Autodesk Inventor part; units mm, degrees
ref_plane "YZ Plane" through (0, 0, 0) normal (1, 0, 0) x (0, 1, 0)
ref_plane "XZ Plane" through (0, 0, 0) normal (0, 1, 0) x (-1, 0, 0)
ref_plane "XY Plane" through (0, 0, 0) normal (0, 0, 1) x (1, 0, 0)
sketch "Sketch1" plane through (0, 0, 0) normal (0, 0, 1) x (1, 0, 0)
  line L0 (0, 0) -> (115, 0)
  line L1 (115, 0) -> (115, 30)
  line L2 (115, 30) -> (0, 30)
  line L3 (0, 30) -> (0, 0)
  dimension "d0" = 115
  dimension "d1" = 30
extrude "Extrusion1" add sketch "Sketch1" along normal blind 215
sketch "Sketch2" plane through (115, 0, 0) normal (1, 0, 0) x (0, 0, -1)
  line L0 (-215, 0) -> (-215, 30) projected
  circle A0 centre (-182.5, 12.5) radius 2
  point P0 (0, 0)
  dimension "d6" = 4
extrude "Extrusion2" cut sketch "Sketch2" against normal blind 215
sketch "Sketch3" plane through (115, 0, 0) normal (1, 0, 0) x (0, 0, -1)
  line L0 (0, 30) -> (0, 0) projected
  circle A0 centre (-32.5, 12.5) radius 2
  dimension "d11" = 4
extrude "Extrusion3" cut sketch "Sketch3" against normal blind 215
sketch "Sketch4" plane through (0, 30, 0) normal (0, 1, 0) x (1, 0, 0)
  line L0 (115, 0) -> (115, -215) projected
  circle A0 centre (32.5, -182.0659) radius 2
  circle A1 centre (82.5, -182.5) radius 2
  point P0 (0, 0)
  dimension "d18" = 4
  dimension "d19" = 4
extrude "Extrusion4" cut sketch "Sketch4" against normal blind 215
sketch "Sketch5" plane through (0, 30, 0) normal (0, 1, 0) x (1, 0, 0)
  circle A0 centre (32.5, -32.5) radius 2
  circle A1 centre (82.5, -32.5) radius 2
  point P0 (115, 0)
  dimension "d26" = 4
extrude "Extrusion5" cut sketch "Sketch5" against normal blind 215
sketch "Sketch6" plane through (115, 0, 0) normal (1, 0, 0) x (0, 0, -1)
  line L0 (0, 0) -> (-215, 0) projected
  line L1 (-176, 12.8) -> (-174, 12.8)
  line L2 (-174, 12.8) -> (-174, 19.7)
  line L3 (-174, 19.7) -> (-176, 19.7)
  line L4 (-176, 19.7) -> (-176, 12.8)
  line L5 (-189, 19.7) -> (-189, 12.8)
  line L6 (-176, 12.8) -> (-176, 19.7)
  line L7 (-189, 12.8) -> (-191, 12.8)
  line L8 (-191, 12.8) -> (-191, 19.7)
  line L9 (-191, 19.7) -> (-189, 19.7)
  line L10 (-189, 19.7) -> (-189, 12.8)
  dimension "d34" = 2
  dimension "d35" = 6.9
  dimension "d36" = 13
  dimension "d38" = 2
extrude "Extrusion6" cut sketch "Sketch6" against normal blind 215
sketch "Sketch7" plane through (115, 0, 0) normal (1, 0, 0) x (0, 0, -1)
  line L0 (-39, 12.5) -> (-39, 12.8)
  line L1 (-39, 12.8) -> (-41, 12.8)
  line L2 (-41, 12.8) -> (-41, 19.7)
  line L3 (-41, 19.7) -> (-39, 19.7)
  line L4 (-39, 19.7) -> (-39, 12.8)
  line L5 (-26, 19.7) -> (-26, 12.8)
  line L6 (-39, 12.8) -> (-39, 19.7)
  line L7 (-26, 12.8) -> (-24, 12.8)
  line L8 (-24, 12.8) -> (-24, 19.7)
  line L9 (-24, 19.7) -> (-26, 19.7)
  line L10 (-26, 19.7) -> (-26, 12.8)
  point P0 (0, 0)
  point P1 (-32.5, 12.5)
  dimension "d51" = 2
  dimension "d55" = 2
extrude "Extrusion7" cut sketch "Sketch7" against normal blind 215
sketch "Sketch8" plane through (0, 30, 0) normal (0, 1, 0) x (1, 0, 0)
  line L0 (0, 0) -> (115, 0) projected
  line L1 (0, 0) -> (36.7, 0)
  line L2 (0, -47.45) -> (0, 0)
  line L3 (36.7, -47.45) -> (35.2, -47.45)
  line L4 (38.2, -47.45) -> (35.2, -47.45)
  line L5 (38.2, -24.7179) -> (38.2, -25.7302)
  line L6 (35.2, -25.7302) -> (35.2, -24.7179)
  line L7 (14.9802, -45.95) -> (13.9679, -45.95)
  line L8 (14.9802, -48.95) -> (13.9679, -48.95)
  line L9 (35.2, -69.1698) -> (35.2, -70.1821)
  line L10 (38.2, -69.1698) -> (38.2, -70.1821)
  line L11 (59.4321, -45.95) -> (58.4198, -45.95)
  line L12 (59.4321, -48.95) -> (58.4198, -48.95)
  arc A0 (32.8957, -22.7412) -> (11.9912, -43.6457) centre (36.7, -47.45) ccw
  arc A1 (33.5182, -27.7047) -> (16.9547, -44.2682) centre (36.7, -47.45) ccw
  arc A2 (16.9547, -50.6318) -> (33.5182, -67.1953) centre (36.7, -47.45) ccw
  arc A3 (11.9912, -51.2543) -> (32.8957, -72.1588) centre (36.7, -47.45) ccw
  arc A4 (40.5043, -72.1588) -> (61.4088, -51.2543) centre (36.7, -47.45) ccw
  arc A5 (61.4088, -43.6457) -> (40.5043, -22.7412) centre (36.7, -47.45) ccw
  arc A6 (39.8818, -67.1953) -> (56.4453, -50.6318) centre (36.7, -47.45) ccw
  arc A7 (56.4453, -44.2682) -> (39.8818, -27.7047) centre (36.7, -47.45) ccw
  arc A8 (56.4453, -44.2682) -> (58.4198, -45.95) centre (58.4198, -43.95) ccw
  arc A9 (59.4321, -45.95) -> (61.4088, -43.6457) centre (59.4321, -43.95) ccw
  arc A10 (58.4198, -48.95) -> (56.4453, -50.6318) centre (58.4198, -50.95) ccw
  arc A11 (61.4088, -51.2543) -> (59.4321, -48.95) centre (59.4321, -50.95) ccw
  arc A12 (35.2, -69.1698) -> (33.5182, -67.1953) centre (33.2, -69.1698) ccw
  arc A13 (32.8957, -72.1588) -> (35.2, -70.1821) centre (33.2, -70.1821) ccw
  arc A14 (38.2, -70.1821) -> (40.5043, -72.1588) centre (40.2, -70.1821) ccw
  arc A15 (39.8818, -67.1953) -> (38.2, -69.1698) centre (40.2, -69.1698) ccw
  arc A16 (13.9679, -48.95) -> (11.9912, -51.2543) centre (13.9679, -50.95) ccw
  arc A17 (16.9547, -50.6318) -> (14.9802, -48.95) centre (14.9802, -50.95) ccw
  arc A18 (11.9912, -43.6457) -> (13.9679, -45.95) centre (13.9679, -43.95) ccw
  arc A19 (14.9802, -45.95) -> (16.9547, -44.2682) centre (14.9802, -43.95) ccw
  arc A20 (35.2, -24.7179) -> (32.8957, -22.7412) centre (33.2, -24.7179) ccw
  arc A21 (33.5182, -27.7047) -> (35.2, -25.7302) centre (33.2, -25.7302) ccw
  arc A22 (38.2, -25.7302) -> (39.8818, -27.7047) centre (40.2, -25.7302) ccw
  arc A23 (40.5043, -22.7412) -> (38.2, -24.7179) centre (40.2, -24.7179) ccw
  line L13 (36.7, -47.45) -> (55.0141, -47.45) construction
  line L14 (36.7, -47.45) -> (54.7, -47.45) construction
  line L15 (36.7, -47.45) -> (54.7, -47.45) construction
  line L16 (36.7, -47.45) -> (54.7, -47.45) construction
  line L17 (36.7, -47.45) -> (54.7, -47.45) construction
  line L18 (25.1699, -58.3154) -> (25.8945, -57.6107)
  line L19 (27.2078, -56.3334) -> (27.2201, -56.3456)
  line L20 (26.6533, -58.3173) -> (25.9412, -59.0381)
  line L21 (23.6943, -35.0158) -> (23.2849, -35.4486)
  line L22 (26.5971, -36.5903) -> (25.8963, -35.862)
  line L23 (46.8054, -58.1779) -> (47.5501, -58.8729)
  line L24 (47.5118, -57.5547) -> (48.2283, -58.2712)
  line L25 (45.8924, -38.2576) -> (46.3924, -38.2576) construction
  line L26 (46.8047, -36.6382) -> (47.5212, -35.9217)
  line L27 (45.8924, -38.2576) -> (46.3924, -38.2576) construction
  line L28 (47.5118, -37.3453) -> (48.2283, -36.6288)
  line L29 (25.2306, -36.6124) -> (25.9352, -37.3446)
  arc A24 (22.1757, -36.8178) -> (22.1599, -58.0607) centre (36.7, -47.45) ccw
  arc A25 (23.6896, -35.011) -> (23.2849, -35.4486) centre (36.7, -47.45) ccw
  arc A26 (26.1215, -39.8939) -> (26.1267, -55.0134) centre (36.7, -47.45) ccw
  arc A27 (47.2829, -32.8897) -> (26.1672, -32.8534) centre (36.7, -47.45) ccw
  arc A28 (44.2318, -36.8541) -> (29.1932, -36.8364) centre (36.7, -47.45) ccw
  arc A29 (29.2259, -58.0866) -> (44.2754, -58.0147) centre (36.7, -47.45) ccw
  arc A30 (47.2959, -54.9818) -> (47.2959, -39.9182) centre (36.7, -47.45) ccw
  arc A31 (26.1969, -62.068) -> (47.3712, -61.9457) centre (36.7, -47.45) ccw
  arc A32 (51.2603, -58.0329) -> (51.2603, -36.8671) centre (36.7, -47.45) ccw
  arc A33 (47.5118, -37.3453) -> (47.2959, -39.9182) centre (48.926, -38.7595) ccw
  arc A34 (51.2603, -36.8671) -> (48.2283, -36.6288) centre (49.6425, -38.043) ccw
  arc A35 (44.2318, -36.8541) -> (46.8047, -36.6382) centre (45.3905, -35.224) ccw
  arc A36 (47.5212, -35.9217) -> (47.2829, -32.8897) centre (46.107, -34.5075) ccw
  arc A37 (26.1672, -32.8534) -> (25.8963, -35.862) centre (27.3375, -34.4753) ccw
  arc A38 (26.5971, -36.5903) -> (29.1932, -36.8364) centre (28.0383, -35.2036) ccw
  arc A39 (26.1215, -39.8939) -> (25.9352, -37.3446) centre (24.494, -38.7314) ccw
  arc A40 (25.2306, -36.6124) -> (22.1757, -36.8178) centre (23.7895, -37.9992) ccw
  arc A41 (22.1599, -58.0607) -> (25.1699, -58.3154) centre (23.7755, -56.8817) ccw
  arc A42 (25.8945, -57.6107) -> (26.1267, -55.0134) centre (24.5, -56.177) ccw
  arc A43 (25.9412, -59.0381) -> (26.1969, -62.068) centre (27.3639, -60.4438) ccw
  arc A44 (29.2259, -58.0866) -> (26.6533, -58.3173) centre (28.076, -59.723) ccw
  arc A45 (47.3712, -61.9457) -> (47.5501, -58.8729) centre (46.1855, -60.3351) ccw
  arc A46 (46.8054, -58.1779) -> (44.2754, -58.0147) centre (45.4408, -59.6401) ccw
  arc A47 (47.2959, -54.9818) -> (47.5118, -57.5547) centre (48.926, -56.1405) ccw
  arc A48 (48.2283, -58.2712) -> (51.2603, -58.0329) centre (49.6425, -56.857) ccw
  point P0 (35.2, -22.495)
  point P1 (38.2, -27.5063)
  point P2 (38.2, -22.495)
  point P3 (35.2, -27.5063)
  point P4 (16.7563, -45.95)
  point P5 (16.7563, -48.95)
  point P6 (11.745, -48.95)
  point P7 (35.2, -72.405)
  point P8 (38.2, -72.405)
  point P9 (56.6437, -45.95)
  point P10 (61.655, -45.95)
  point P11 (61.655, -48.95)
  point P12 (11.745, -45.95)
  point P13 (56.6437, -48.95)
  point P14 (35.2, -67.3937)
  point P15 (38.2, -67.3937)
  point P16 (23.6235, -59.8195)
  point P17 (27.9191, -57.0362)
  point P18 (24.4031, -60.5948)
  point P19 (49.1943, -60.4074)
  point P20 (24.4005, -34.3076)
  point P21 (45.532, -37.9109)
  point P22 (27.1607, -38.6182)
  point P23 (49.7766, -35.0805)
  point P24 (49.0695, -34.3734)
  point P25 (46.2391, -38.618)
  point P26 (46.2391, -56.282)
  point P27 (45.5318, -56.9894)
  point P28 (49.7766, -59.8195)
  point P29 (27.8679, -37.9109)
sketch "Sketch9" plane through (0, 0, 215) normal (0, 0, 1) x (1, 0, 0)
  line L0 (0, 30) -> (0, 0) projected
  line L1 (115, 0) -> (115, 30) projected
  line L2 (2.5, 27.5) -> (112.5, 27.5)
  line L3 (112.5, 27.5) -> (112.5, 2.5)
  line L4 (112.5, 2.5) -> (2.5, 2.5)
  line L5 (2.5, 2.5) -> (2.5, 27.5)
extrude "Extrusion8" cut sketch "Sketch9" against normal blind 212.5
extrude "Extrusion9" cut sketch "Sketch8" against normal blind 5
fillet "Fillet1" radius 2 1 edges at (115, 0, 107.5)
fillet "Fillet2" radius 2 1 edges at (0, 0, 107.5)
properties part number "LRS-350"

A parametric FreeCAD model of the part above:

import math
import FreeCAD as App
import Part
import Sketcher
from FreeCAD import Vector
Q = App.Units.Quantity


def edges_at(feature, points):
    """Names of the edges that pass closest to the given points."""
    edges = feature.Shape.Edges
    near = lambda p: min(range(len(edges)), key=lambda i: edges[i].distToShape(Part.Vertex(*p))[0])
    return sorted({f"Edge{near(p) + 1}" for p in points})


def add_polygon(sketch, points):
    """Adds a closed chain of lines whose ends are joined by coincident constraints."""
    first, n = sketch.GeometryCount, len(points)
    for a, b in zip(points, points[1:] + points[:1]):
        sketch.addGeometry(Part.LineSegment(App.Vector(*a, 0), App.Vector(*b, 0)), False)
    for i in range(n):
        sketch.addConstraint(Sketcher.Constraint("Coincident", first + i, 2, first + (i + 1) % n, 1))

doc = App.newDocument("Part")
params = doc.addObject("Spreadsheet::Sheet", "Params")
for row, (alias, value) in enumerate([
    ("sketch1_width", "115 mm"),
    ("sketch1_height", "30 mm"),
    ("pad1_length", "215 mm"),
    ("sketch2_diameter", "4 mm"),
    ("pocket1_length", "215 mm"),
    ("sketch3_diameter", "4 mm"),
    ("pocket2_length", "215 mm"),
    ("sketch4_diameter", "4 mm"),
    ("pocket3_length", "215 mm"),
    ("sketch5_diameter", "4 mm"),
    ("pocket4_length", "215 mm"),
    ("sketch6_height", "2 mm"),
    ("sketch6_width", "6.9 mm"),
    ("pocket5_length", "215 mm"),
    ("sketch7_height", "2 mm"),
    ("sketch7_width", "6.9 mm"),
    ("pocket6_length", "215 mm"),
    ("sketch8_width", "110 mm"),
    ("sketch8_height", "25 mm"),
    ("pocket7_length", "212.5 mm"),
    ("sketch9_radius", "2 mm"),
    ("sketch9_radius2", "2 mm"),
    ("sketch9_radius3", "20 mm"),
    ("sketch9_radius4", "2 mm"),
    ("sketch9_radius5", "2 mm"),
    ("pocket8_length", "5 mm"),
    ("fillet_radius", "2 mm"),
    ("fillet2_radius", "2 mm"),
], start=1):
    params.set(f"A{row}", alias)
    params.set(f"B{row}", "=" + value)
    params.setAlias(f"B{row}", alias)

body = doc.addObject("PartDesign::Body", "Body")

sketch1 = body.newObject("Sketcher::SketchObject", "Sketch")
sketch1.AttachmentSupport = (doc.getObject("XY_Plane"), [""])
sketch1.MapMode = "FlatFace"
add_polygon(sketch1, [(0, 30), (0, 0), (115, 0), (115, 30)])
sketch1.addConstraint([
    Sketcher.Constraint("Vertical", 0),
    Sketcher.Constraint("Horizontal", 1),
    Sketcher.Constraint("Vertical", 2),
    Sketcher.Constraint("Horizontal", 3),
    Sketcher.Constraint("Coincident", 0, 2, -1, 1),
    Sketcher.Constraint("DistanceX", 1, 1, 1, 2, Q("115 mm")),
    Sketcher.Constraint("DistanceY", 0, 2, 0, 1, Q("30 mm")),
])
sketch1.setExpression("Constraints[9]", "Params.sketch1_width")
sketch1.setExpression("Constraints[10]", "Params.sketch1_height")
pad1 = body.newObject("PartDesign::Pad", "Pad")
pad1.Profile = sketch1
pad1.setExpression("Length", "Params.pad1_length")

sketch2 = body.newObject("Sketcher::SketchObject", "Sketch001")
sketch2.AttachmentSupport = (doc.getObject("YZ_Plane"), [""])
sketch2.MapMode = "FlatFace"
sketch2.AttachmentOffset = App.Placement(Vector(0, 0, 115), App.Rotation())
sketch2.addGeometry(Part.Circle(Vector(12.5, 182.5, 0), Vector(0, 0, 1), 2), False)
sketch2.addConstraint([
    Sketcher.Constraint("Diameter", 0, Q("4 mm")),
    Sketcher.Constraint("DistanceX", -1, 1, 0, 3, Q("12.5 mm")),
    Sketcher.Constraint("DistanceY", -1, 1, 0, 3, Q("182.5 mm")),
])
sketch2.setExpression("Constraints[0]", "Params.sketch2_diameter")
pocket1 = body.newObject("PartDesign::Pocket", "Pocket")
pocket1.Profile = sketch2
pocket1.setExpression("Length", "Params.pocket1_length")

sketch3 = body.newObject("Sketcher::SketchObject", "Sketch002")
sketch3.AttachmentSupport = (doc.getObject("YZ_Plane"), [""])
sketch3.MapMode = "FlatFace"
sketch3.AttachmentOffset = App.Placement(Vector(0, 0, 115), App.Rotation())
sketch3.addGeometry(Part.Circle(Vector(12.5, 32.5, 0), Vector(0, 0, 1), 2), False)
sketch3.addConstraint([
    Sketcher.Constraint("Diameter", 0, Q("4 mm")),
    Sketcher.Constraint("DistanceX", -1, 1, 0, 3, Q("12.5 mm")),
    Sketcher.Constraint("DistanceY", -1, 1, 0, 3, Q("32.5 mm")),
])
sketch3.setExpression("Constraints[0]", "Params.sketch3_diameter")
pocket2 = body.newObject("PartDesign::Pocket", "Pocket001")
pocket2.Profile = sketch3
pocket2.setExpression("Length", "Params.pocket2_length")

sketch4 = body.newObject("Sketcher::SketchObject", "Sketch003")
sketch4.AttachmentSupport = (doc.getObject("XZ_Plane"), [""])
sketch4.MapMode = "FlatFace"
sketch4.AttachmentOffset = App.Placement(Vector(0, 0, -30), App.Rotation())
sketch4.addGeometry([
    Part.Circle(Vector(32.5, 182.0659, 0), Vector(0, 0, 1), 2),
    Part.Circle(Vector(82.5, 182.5, 0), Vector(0, 0, 1), 2),
], False)
sketch4.addConstraint([
    Sketcher.Constraint("Equal", 0, 1),
    Sketcher.Constraint("Diameter", 0, Q("4 mm")),
    Sketcher.Constraint("DistanceX", 0, 3, 1, 3, Q("50 mm")),
    Sketcher.Constraint("DistanceX", -1, 1, 0, 3, Q("32.5 mm")),
    Sketcher.Constraint("DistanceY", -1, 1, 1, 3, Q("182.5 mm")),
    Sketcher.Constraint("DistanceY", -1, 1, 0, 3, Q("182.066 mm")),
])
sketch4.setExpression("Constraints[1]", "Params.sketch4_diameter")
pocket3 = body.newObject("PartDesign::Pocket", "Pocket002")
pocket3.Profile = sketch4
pocket3.setExpression("Length", "Params.pocket3_length")
pocket3.Reversed = True

sketch5 = body.newObject("Sketcher::SketchObject", "Sketch004")
sketch5.AttachmentSupport = (doc.getObject("XZ_Plane"), [""])
sketch5.MapMode = "FlatFace"
sketch5.AttachmentOffset = App.Placement(Vector(0, 0, -30), App.Rotation())
sketch5.addGeometry([
    Part.Circle(Vector(32.5, 32.5, 0), Vector(0, 0, 1), 2),
    Part.Circle(Vector(82.5, 32.5, 0), Vector(0, 0, 1), 2),
], False)
sketch5.addConstraint([
    Sketcher.Constraint("Equal", 0, 1),
    Sketcher.Constraint("Horizontal", 0, 3, 1, 3),
    Sketcher.Constraint("Diameter", 0, Q("4 mm")),
    Sketcher.Constraint("DistanceX", 0, 3, 1, 3, Q("50 mm")),
    Sketcher.Constraint("DistanceX", -1, 1, 0, 3, Q("32.5 mm")),
    Sketcher.Constraint("DistanceY", -1, 1, 0, 3, Q("32.5 mm")),
])
sketch5.setExpression("Constraints[2]", "Params.sketch5_diameter")
pocket4 = body.newObject("PartDesign::Pocket", "Pocket003")
pocket4.Profile = sketch5
pocket4.setExpression("Length", "Params.pocket4_length")
pocket4.Reversed = True

sketch6 = body.newObject("Sketcher::SketchObject", "Sketch005")
sketch6.AttachmentSupport = (doc.getObject("YZ_Plane"), [""])
sketch6.MapMode = "FlatFace"
sketch6.AttachmentOffset = App.Placement(Vector(0, 0, 115), App.Rotation())
add_polygon(sketch6, [(19.7, 176), (12.8, 176), (12.8, 174), (19.7, 174)])
add_polygon(sketch6, [(12.8, 189), (19.7, 189), (19.7, 191), (12.8, 191)])
sketch6.addConstraint([
    Sketcher.Constraint("Horizontal", 0),
    Sketcher.Constraint("Vertical", 1),
    Sketcher.Constraint("Horizontal", 2),
    Sketcher.Constraint("Vertical", 3),
    Sketcher.Constraint("Horizontal", 4),
    Sketcher.Constraint("Vertical", 5),
    Sketcher.Constraint("Horizontal", 6),
    Sketcher.Constraint("Vertical", 7),
    Sketcher.Constraint("Vertical", 3, 2, 4, 2),
    Sketcher.Constraint("Vertical", 1, 2, 6, 2),
    Sketcher.Constraint("Equal", 3, 5),
    Sketcher.Constraint("DistanceY", 1, 2, 1, 1, Q("2 mm")),
    Sketcher.Constraint("DistanceX", 0, 2, 0, 1, Q("6.9 mm")),
    Sketcher.Constraint("DistanceY", 3, 2, 4, 2, Q("13 mm")),
    Sketcher.Constraint("DistanceY", -1, 1, 0, 2, Q("176 mm")),
    Sketcher.Constraint("DistanceX", -1, 1, 0, 2, Q("12.8 mm")),
])
sketch6.setExpression("Constraints[19]", "Params.sketch6_height")
sketch6.setExpression("Constraints[20]", "Params.sketch6_width")
pocket5 = body.newObject("PartDesign::Pocket", "Pocket004")
pocket5.Profile = sketch6
pocket5.setExpression("Length", "Params.pocket5_length")

sketch7 = body.newObject("Sketcher::SketchObject", "Sketch006")
sketch7.AttachmentSupport = (doc.getObject("YZ_Plane"), [""])
sketch7.MapMode = "FlatFace"
sketch7.AttachmentOffset = App.Placement(Vector(0, 0, 115), App.Rotation())
add_polygon(sketch7, [(12.8, 41), (12.8, 39), (19.7, 39), (19.7, 41)])
add_polygon(sketch7, [(19.7, 24), (19.7, 26), (12.8, 26), (12.8, 24)])
sketch7.addConstraint([
    Sketcher.Constraint("Vertical", 0),
    Sketcher.Constraint("Horizontal", 1),
    Sketcher.Constraint("Vertical", 2),
    Sketcher.Constraint("Horizontal", 3),
    Sketcher.Constraint("Vertical", 4),
    Sketcher.Constraint("Horizontal", 5),
    Sketcher.Constraint("Vertical", 6),
    Sketcher.Constraint("Horizontal", 7),
    Sketcher.Constraint("Vertical", 2, 2, 4, 2),
    Sketcher.Constraint("Vertical", 3, 2, 5, 2),
    Sketcher.Constraint("Equal", 2, 4),
    Sketcher.Constraint("DistanceY", 0, 2, 0, 1, Q("2 mm")),
    Sketcher.Constraint("DistanceX", 1, 1, 1, 2, Q("6.9 mm")),
    Sketcher.Constraint("DistanceY", -1, 1, 0, 2, Q("39 mm")),
    Sketcher.Constraint("DistanceY", -1, 1, 4, 2, Q("26 mm")),
    Sketcher.Constraint("DistanceX", -1, 1, 0, 2, Q("12.8 mm")),
])
sketch7.setExpression("Constraints[19]", "Params.sketch7_height")
sketch7.setExpression("Constraints[20]", "Params.sketch7_width")
pocket6 = body.newObject("PartDesign::Pocket", "Pocket005")
pocket6.Profile = sketch7
pocket6.setExpression("Length", "Params.pocket6_length")

sketch8 = body.newObject("Sketcher::SketchObject", "Sketch007")
sketch8.AttachmentSupport = (doc.getObject("XY_Plane"), [""])
sketch8.MapMode = "FlatFace"
sketch8.AttachmentOffset = App.Placement(Vector(0, 0, 215), App.Rotation())
add_polygon(sketch8, [(112.5, 27.5), (2.5, 27.5), (2.5, 2.5), (112.5, 2.5)])
sketch8.addConstraint([
    Sketcher.Constraint("Horizontal", 0),
    Sketcher.Constraint("Vertical", 1),
    Sketcher.Constraint("Horizontal", 2),
    Sketcher.Constraint("Vertical", 3),
    Sketcher.Constraint("DistanceX", 0, 2, 0, 1, Q("110 mm")),
    Sketcher.Constraint("DistanceY", 1, 2, 1, 1, Q("25 mm")),
    Sketcher.Constraint("DistanceX", -1, 1, 0, 2, Q("2.5 mm")),
    Sketcher.Constraint("DistanceY", -1, 1, 0, 2, Q("27.5 mm")),
])
sketch8.setExpression("Constraints[8]", "Params.sketch8_width")
sketch8.setExpression("Constraints[9]", "Params.sketch8_height")
pocket7 = body.newObject("PartDesign::Pocket", "Pocket006")
pocket7.Profile = sketch8
pocket7.setExpression("Length", "Params.pocket7_length")

sketch9 = body.newObject("Sketcher::SketchObject", "Sketch008")
sketch9.AttachmentSupport = (doc.getObject("XZ_Plane"), [""])
sketch9.MapMode = "FlatFace"
sketch9.AttachmentOffset = App.Placement(Vector(0, 0, -30), App.Rotation())
sketch9.addGeometry([
    Part.ArcOfCircle(Part.Circle(Vector(40.2, 24.7179, 0), Vector(0, 0, 1), 1.999985), math.radians(180), math.radians(278.751607)),
    Part.LineSegment(Vector(38.2, 24.7179, 0), Vector(38.2, 25.7302, 0)),
    Part.ArcOfCircle(Part.Circle(Vector(40.2, 25.7302, 0), Vector(0, 0, 1), 2), math.radians(99.154775), math.radians(180)),
    Part.ArcOfCircle(Part.Circle(Vector(36.7, 47.45, 0), Vector(0, 0, 1), 20.000018), math.radians(-80.845928), math.radians(-9.154072)),
    Part.ArcOfCircle(Part.Circle(Vector(58.4198, 43.95, 0), Vector(0, 0, 1), 1.999975), math.radians(90), math.radians(170.845225)),
    Part.LineSegment(Vector(58.4198, 45.95, 0), Vector(59.4321, 45.95, 0)),
    Part.ArcOfCircle(Part.Circle(Vector(59.4321, 43.95, 0), Vector(0, 0, 1), 2), math.radians(-8.751607), math.radians(90)),
    Part.ArcOfCircle(Part.Circle(Vector(36.7, 47.45, 0), Vector(0, 0, 1), 24.99995), math.radians(-81.247164), math.radians(-8.752836)),
    Part.ArcOfCircle(Part.Circle(Vector(33.2, 25.7302, 0), Vector(0, 0, 1), 1.999975), math.radians(0), math.radians(80.845225)),
    Part.LineSegment(Vector(35.2, 25.7302, 0), Vector(35.2, 24.7179, 0)),
    Part.ArcOfCircle(Part.Circle(Vector(33.2, 24.7179, 0), Vector(0, 0, 1), 2), math.radians(-98.751607), math.radians(0)),
    Part.ArcOfCircle(Part.Circle(Vector(36.7, 47.45, 0), Vector(0, 0, 1), 24.99995), math.radians(-171.247164), math.radians(-98.752836)),
    Part.ArcOfCircle(Part.Circle(Vector(13.9679, 43.95, 0), Vector(0, 0, 1), 1.999985), math.radians(90), math.radians(188.751607)),
    Part.LineSegment(Vector(13.9679, 45.95, 0), Vector(14.9802, 45.95, 0)),
    Part.ArcOfCircle(Part.Circle(Vector(14.9802, 43.95, 0), Vector(0, 0, 1), 2), math.radians(9.154775), math.radians(90)),
    Part.ArcOfCircle(Part.Circle(Vector(36.7, 47.45, 0), Vector(0, 0, 1), 20.000018), math.radians(-170.845928), math.radians(-99.154072)),
    Part.ArcOfCircle(Part.Circle(Vector(14.9802, 50.95, 0), Vector(0, 0, 1), 1.999975), math.radians(-90), math.radians(-9.154775)),
    Part.LineSegment(Vector(14.9802, 48.95, 0), Vector(13.9679, 48.95, 0)),
    Part.ArcOfCircle(Part.Circle(Vector(13.9679, 50.95, 0), Vector(0, 0, 1), 2), math.radians(171.248393), math.radians(270)),
    Part.ArcOfCircle(Part.Circle(Vector(36.7, 47.45, 0), Vector(0, 0, 1), 24.99995), math.radians(98.752836), math.radians(171.247164)),
    Part.ArcOfCircle(Part.Circle(Vector(33.2, 70.1821, 0), Vector(0, 0, 1), 1.999985), math.radians(0), math.radians(98.751607)),
    Part.LineSegment(Vector(35.2, 70.1821, 0), Vector(35.2, 69.1698, 0)),
    Part.ArcOfCircle(Part.Circle(Vector(33.2, 69.1698, 0), Vector(0, 0, 1), 2), math.radians(-80.845225), math.radians(0)),
    Part.ArcOfCircle(Part.Circle(Vector(36.7, 47.45, 0), Vector(0, 0, 1), 20.000018), math.radians(99.154072), math.radians(170.845928)),
    Part.ArcOfCircle(Part.Circle(Vector(40.2, 69.1698, 0), Vector(0, 0, 1), 1.999975), math.radians(180), math.radians(260.845225)),
    Part.LineSegment(Vector(38.2, 69.1698, 0), Vector(38.2, 70.1821, 0)),
    Part.ArcOfCircle(Part.Circle(Vector(40.2, 70.1821, 0), Vector(0, 0, 1), 2), math.radians(81.248393), math.radians(180)),
    Part.ArcOfCircle(Part.Circle(Vector(36.7, 47.45, 0), Vector(0, 0, 1), 24.99995), math.radians(8.752836), math.radians(81.247164)),
    Part.ArcOfCircle(Part.Circle(Vector(59.4321, 50.95, 0), Vector(0, 0, 1), 1.999985), math.radians(-90), math.radians(8.751607)),
    Part.LineSegment(Vector(59.4321, 48.95, 0), Vector(58.4198, 48.95, 0)),
    Part.ArcOfCircle(Part.Circle(Vector(58.4198, 50.95, 0), Vector(0, 0, 1), 2), math.radians(-170.845225), math.radians(-90)),
    Part.ArcOfCircle(Part.Circle(Vector(36.7, 47.45, 0), Vector(0, 0, 1), 20.000018), math.radians(9.154072), math.radians(80.845928)),
    Part.ArcOfCircle(Part.Circle(Vector(23.7755, 56.8817, 0), Vector(0, 0, 1), 2.000051), math.radians(45.796146), math.radians(143.879533)),
    Part.LineSegment(Vector(25.1699, 58.3154, 0), Vector(25.8945, 57.6107, 0)),
    Part.ArcOfCircle(Part.Circle(Vector(24.5, 56.177, 0), Vector(0, 0, 1), 2.000031), math.radians(-35.576641), math.radians(45.794092)),
    Part.ArcOfCircle(Part.Circle(Vector(36.7, 47.45, 0), Vector(0, 0, 1), 13.000043), math.radians(144.422718), math.radians(215.53778)),
    Part.ArcOfCircle(Part.Circle(Vector(24.494, 38.7314, 0), Vector(0, 0, 1), 2.000041), math.radians(-43.897982), math.radians(35.537678)),
    Part.LineSegment(Vector(25.9352, 37.3446, 0), Vector(25.2306, 36.6124, 0)),
    Part.ArcOfCircle(Part.Circle(Vector(23.7895, 37.9992, 0), Vector(0, 0, 1), 1.999996), math.radians(-143.793598), math.radians(-43.899969)),
    Part.ArcOfCircle(Part.Circle(Vector(36.7, 47.45, 0), Vector(0, 0, 1), 18.000029), math.radians(143.879742), math.radians(216.205187)),
    Part.ArcOfCircle(Part.Circle(Vector(28.076, 59.723, 0), Vector(0, 0, 1), 2.000019), math.radians(-135.34437), math.radians(-54.904247)),
    Part.LineSegment(Vector(26.6533, 58.3173, 0), Vector(25.9412, 59.0381, 0)),
    Part.ArcOfCircle(Part.Circle(Vector(27.3639, 60.4438, 0), Vector(0, 0, 1), 2.000017), math.radians(125.697532), math.radians(224.65563)),
    Part.ArcOfCircle(Part.Circle(Vector(36.7, 47.45, 0), Vector(0, 0, 1), 17.999971), math.radians(53.640869), math.radians(125.697419)),
    Part.ArcOfCircle(Part.Circle(Vector(46.1855, 60.3351, 0), Vector(0, 0, 1), 1.999979), math.radians(-46.977447), math.radians(53.640047)),
    Part.LineSegment(Vector(47.5501, 58.8729, 0), Vector(46.8054, 58.1779, 0)),
    Part.ArcOfCircle(Part.Circle(Vector(45.4408, 59.6401, 0), Vector(0, 0, 1), 2.00004), math.radians(-125.640248), math.radians(-46.977447)),
    Part.ArcOfCircle(Part.Circle(Vector(36.7, 47.45, 0), Vector(0, 0, 1), 12.999978), math.radians(54.35765), math.radians(125.094852)),
    Part.LineSegment(Vector(25.8963, 35.862, 0), Vector(26.5971, 36.5903, 0)),
    Part.ArcOfCircle(Part.Circle(Vector(28.0383, 35.2036, 0), Vector(0, 0, 1), 1.999999), math.radians(54.72775), math.radians(136.104082)),
    Part.ArcOfCircle(Part.Circle(Vector(36.7, 47.45, 0), Vector(0, 0, 1), 12.999978), math.radians(-125.271052), math.radians(-54.593944)),
    Part.ArcOfCircle(Part.Circle(Vector(45.3905, 35.224, 0), Vector(0, 0, 1), 1.999953), math.radians(45), math.radians(125.405797)),
    Part.LineSegment(Vector(46.8047, 36.6382, 0), Vector(47.5212, 35.9217, 0)),
    Part.ArcOfCircle(Part.Circle(Vector(46.107, 34.5075, 0), Vector(0, 0, 1), 1.999981), math.radians(-53.988423), math.radians(45)),
    Part.ArcOfCircle(Part.Circle(Vector(36.7, 47.45, 0), Vector(0, 0, 1), 18.000029), math.radians(-125.813941), math.radians(-53.989125)),
    Part.ArcOfCircle(Part.Circle(Vector(27.3375, 34.4753, 0), Vector(0, 0, 1), 2.00004), math.radians(136.104082), math.radians(234.187248)),
    Part.ArcOfCircle(Part.Circle(Vector(48.926, 56.1405, 0), Vector(0, 0, 1), 1.999953), math.radians(135), math.radians(215.405797)),
    Part.LineSegment(Vector(47.5118, 57.5547, 0), Vector(48.2283, 58.2712, 0)),
    Part.ArcOfCircle(Part.Circle(Vector(49.6425, 56.857, 0), Vector(0, 0, 1), 1.999981), math.radians(36.011577), math.radians(135)),
    Part.ArcOfCircle(Part.Circle(Vector(36.7, 47.45, 0), Vector(0, 0, 1), 18.000003), math.radians(-36.010875), math.radians(36.010875)),
    Part.ArcOfCircle(Part.Circle(Vector(49.6425, 38.043, 0), Vector(0, 0, 1), 2.000004), math.radians(-135), math.radians(-36.011577)),
    Part.LineSegment(Vector(48.2283, 36.6288, 0), Vector(47.5118, 37.3453, 0)),
    Part.ArcOfCircle(Part.Circle(Vector(48.926, 38.7595, 0), Vector(0, 0, 1), 1.999981), math.radians(144.594203), math.radians(225)),
    Part.ArcOfCircle(Part.Circle(Vector(36.7, 47.45, 0), Vector(0, 0, 1), 13.000043), math.radians(-35.406056), math.radians(35.406056)),
], False)
sketch9.addConstraint([
    Sketcher.Constraint("Coincident", 0, 1, 1, 1),
    Sketcher.Constraint("Coincident", 1, 2, 2, 2),
    Sketcher.Constraint("Coincident", 2, 1, 3, 1),
    Sketcher.Constraint("Coincident", 3, 2, 4, 2),
    Sketcher.Constraint("Coincident", 4, 1, 5, 1),
    Sketcher.Constraint("Coincident", 5, 2, 6, 2),
    Sketcher.Constraint("Coincident", 6, 1, 7, 2),
    Sketcher.Constraint("Coincident", 7, 1, 0, 2),
    Sketcher.Constraint("Coincident", 8, 1, 9, 1),
    Sketcher.Constraint("Coincident", 9, 2, 10, 2),
    Sketcher.Constraint("Coincident", 10, 1, 11, 2),
    Sketcher.Constraint("Coincident", 11, 1, 12, 2),
    Sketcher.Constraint("Coincident", 12, 1, 13, 1),
    Sketcher.Constraint("Coincident", 13, 2, 14, 2),
    Sketcher.Constraint("Coincident", 14, 1, 15, 1),
    Sketcher.Constraint("Coincident", 15, 2, 8, 2),
    Sketcher.Constraint("Coincident", 16, 1, 17, 1),
    Sketcher.Constraint("Coincident", 17, 2, 18, 2),
    Sketcher.Constraint("Coincident", 18, 1, 19, 2),
    Sketcher.Constraint("Coincident", 19, 1, 20, 2),
    Sketcher.Constraint("Coincident", 20, 1, 21, 1),
    Sketcher.Constraint("Coincident", 21, 2, 22, 2),
    Sketcher.Constraint("Coincident", 22, 1, 23, 1),
    Sketcher.Constraint("Coincident", 23, 2, 16, 2),
    Sketcher.Constraint("Coincident", 24, 1, 25, 1),
    Sketcher.Constraint("Coincident", 25, 2, 26, 2),
    Sketcher.Constraint("Coincident", 26, 1, 27, 2),
    Sketcher.Constraint("Coincident", 27, 1, 28, 2),
    Sketcher.Constraint("Coincident", 28, 1, 29, 1),
    Sketcher.Constraint("Coincident", 29, 2, 30, 2),
    Sketcher.Constraint("Coincident", 30, 1, 31, 1),
    Sketcher.Constraint("Coincident", 31, 2, 24, 2),
    Sketcher.Constraint("Coincident", 32, 1, 33, 1),
    Sketcher.Constraint("Coincident", 33, 2, 34, 2),
    Sketcher.Constraint("Coincident", 34, 1, 35, 1),
    Sketcher.Constraint("Coincident", 35, 2, 36, 2),
    Sketcher.Constraint("Coincident", 36, 1, 37, 1),
    Sketcher.Constraint("Coincident", 37, 2, 38, 2),
    Sketcher.Constraint("Coincident", 38, 1, 39, 2),
    Sketcher.Constraint("Coincident", 39, 1, 32, 2),
    Sketcher.Constraint("Coincident", 40, 1, 41, 1),
    Sketcher.Constraint("Coincident", 41, 2, 42, 2),
    Sketcher.Constraint("Coincident", 42, 1, 43, 2),
    Sketcher.Constraint("Coincident", 43, 1, 44, 2),
    Sketcher.Constraint("Coincident", 44, 1, 45, 1),
    Sketcher.Constraint("Coincident", 45, 2, 46, 2),
    Sketcher.Constraint("Coincident", 46, 1, 47, 1),
    Sketcher.Constraint("Coincident", 47, 2, 40, 2),
    Sketcher.Constraint("Coincident", 48, 2, 49, 2),
    Sketcher.Constraint("Coincident", 49, 1, 50, 1),
    Sketcher.Constraint("Coincident", 50, 2, 51, 2),
    Sketcher.Constraint("Coincident", 51, 1, 52, 1),
    Sketcher.Constraint("Coincident", 52, 2, 53, 2),
    Sketcher.Constraint("Coincident", 53, 1, 54, 2),
    Sketcher.Constraint("Coincident", 54, 1, 55, 2),
    Sketcher.Constraint("Coincident", 55, 1, 48, 1),
    Sketcher.Constraint("Coincident", 56, 1, 57, 1),
    Sketcher.Constraint("Coincident", 57, 2, 58, 2),
    Sketcher.Constraint("Coincident", 58, 1, 59, 2),
    Sketcher.Constraint("Coincident", 59, 1, 60, 2),
    Sketcher.Constraint("Coincident", 60, 1, 61, 1),
    Sketcher.Constraint("Coincident", 61, 2, 62, 2),
    Sketcher.Constraint("Coincident", 62, 1, 63, 1),
    Sketcher.Constraint("Coincident", 63, 2, 56, 2),
    Sketcher.Constraint("Vertical", 1),
    Sketcher.Constraint("Horizontal", 5),
    Sketcher.Constraint("Vertical", 9),
    Sketcher.Constraint("Horizontal", 13),
    Sketcher.Constraint("Horizontal", 17),
    Sketcher.Constraint("Vertical", 21),
    Sketcher.Constraint("Vertical", 25),
    Sketcher.Constraint("Horizontal", 29),
    Sketcher.Constraint("Coincident", 7, 3, 3, 3),
    Sketcher.Constraint("Coincident", 11, 3, 3, 3),
    Sketcher.Constraint("Coincident", 15, 3, 3, 3),
    Sketcher.Constraint("Coincident", 19, 3, 3, 3),
    Sketcher.Constraint("Coincident", 23, 3, 3, 3),
    Sketcher.Constraint("Coincident", 27, 3, 3, 3),
    Sketcher.Constraint("Coincident", 31, 3, 3, 3),
    Sketcher.Constraint("Coincident", 35, 3, 3, 3),
    Sketcher.Constraint("Coincident", 39, 3, 3, 3),
    Sketcher.Constraint("Coincident", 43, 3, 3, 3),
    Sketcher.Constraint("Coincident", 47, 3, 3, 3),
    Sketcher.Constraint("Coincident", 50, 3, 3, 3),
    Sketcher.Constraint("Coincident", 54, 3, 3, 3),
    Sketcher.Constraint("Coincident", 59, 3, 3, 3),
    Sketcher.Constraint("Coincident", 63, 3, 3, 3),
    Sketcher.Constraint("Radius", 0, Q("2 mm")),
    Sketcher.Constraint("Radius", 2, Q("2 mm")),
    Sketcher.Constraint("Radius", 3, Q("20 mm")),
    Sketcher.Constraint("Radius", 4, Q("2 mm")),
    Sketcher.Constraint("Radius", 6, Q("2 mm")),
    Sketcher.Constraint("Radius", 7, Q("25 mm")),
    Sketcher.Constraint("Radius", 8, Q("2 mm")),
    Sketcher.Constraint("Radius", 10, Q("2 mm")),
    Sketcher.Constraint("Radius", 11, Q("25 mm")),
    Sketcher.Constraint("Radius", 12, Q("2 mm")),
    Sketcher.Constraint("Radius", 14, Q("2 mm")),
    Sketcher.Constraint("Radius", 15, Q("20 mm")),
    Sketcher.Constraint("Radius", 16, Q("2 mm")),
    Sketcher.Constraint("Radius", 18, Q("2 mm")),
    Sketcher.Constraint("Radius", 19, Q("25 mm")),
    Sketcher.Constraint("Radius", 20, Q("2 mm")),
    Sketcher.Constraint("Radius", 22, Q("2 mm")),
    Sketcher.Constraint("Radius", 23, Q("20 mm")),
    Sketcher.Constraint("Radius", 24, Q("2 mm")),
    Sketcher.Constraint("Radius", 26, Q("2 mm")),
    Sketcher.Constraint("Radius", 27, Q("25 mm")),
    Sketcher.Constraint("Radius", 28, Q("2 mm")),
    Sketcher.Constraint("Radius", 30, Q("2 mm")),
    Sketcher.Constraint("Radius", 31, Q("20 mm")),
    Sketcher.Constraint("Radius", 32, Q("2 mm")),
    Sketcher.Constraint("Radius", 34, Q("2 mm")),
    Sketcher.Constraint("Radius", 35, Q("13 mm")),
    Sketcher.Constraint("Radius", 36, Q("2 mm")),
    Sketcher.Constraint("Radius", 38, Q("2 mm")),
    Sketcher.Constraint("Radius", 39, Q("18 mm")),
    Sketcher.Constraint("Radius", 40, Q("2 mm")),
    Sketcher.Constraint("Radius", 42, Q("2 mm")),
    Sketcher.Constraint("Radius", 43, Q("18 mm")),
    Sketcher.Constraint("Radius", 44, Q("2 mm")),
    Sketcher.Constraint("Radius", 46, Q("2 mm")),
    Sketcher.Constraint("Radius", 47, Q("13 mm")),
    Sketcher.Constraint("Radius", 49, Q("2 mm")),
    Sketcher.Constraint("Radius", 50, Q("13 mm")),
    Sketcher.Constraint("Radius", 51, Q("2 mm")),
    Sketcher.Constraint("Radius", 53, Q("2 mm")),
    Sketcher.Constraint("Radius", 54, Q("18 mm")),
    Sketcher.Constraint("Radius", 55, Q("2 mm")),
    Sketcher.Constraint("Radius", 56, Q("2 mm")),
    Sketcher.Constraint("Radius", 58, Q("2 mm")),
    Sketcher.Constraint("Radius", 59, Q("18 mm")),
    Sketcher.Constraint("Radius", 60, Q("2 mm")),
    Sketcher.Constraint("Radius", 62, Q("2 mm")),
    Sketcher.Constraint("Radius", 63, Q("13 mm")),
    Sketcher.Constraint("DistanceX", -1, 1, 0, 3, Q("40.2 mm")),
    Sketcher.Constraint("DistanceX", -1, 1, 3, 3, Q("36.7 mm")),
    Sketcher.Constraint("DistanceX", -1, 1, 8, 3, Q("33.2 mm")),
    Sketcher.Constraint("DistanceX", -1, 1, 20, 3, Q("33.2 mm")),
    Sketcher.Constraint("DistanceX", -1, 1, 24, 3, Q("40.2 mm")),
    Sketcher.Constraint("DistanceX", -1, 1, 34, 3, Q("24.5 mm")),
    Sketcher.Constraint("DistanceY", -1, 1, 3, 3, Q("47.45 mm")),
    Sketcher.Constraint("DistanceY", -1, 1, 4, 3, Q("43.95 mm")),
    Sketcher.Constraint("DistanceY", -1, 1, 12, 3, Q("43.95 mm")),
    Sketcher.Constraint("DistanceY", -1, 1, 16, 3, Q("50.95 mm")),
    Sketcher.Constraint("DistanceY", -1, 1, 28, 3, Q("50.95 mm")),
    Sketcher.Constraint("DistanceY", -1, 1, 46, 3, Q("59.64 mm")),
    Sketcher.Constraint("DistanceX", -1, 1, 32, 1, Q("25.17 mm")),
    Sketcher.Constraint("DistanceX", -1, 1, 39, 1, Q("22.16 mm")),
    Sketcher.Constraint("DistanceX", -1, 1, 44, 1, Q("47.55 mm")),
    Sketcher.Constraint("DistanceX", 5, 1, 5, 2, Q("1.0123 mm")),
    Sketcher.Constraint("DistanceX", 13, 1, 13, 2, Q("1.0123 mm")),
    Sketcher.Constraint("DistanceX", 17, 2, 17, 1, Q("1.0123 mm")),
    Sketcher.Constraint("DistanceX", 29, 2, 29, 1, Q("1.0123 mm")),
    Sketcher.Constraint("DistanceY", 1, 1, 1, 2, Q("1.0123 mm")),
    Sketcher.Constraint("DistanceY", 9, 2, 9, 1, Q("1.0123 mm")),
    Sketcher.Constraint("DistanceY", 21, 2, 21, 1, Q("1.0123 mm")),
    Sketcher.Constraint("DistanceY", 25, 1, 25, 2, Q("1.0123 mm")),
    Sketcher.Constraint("DistanceX", -1, 1, 36, 3, Q("24.494 mm")),
    Sketcher.Constraint("DistanceX", -1, 1, 40, 3, Q("28.076 mm")),
    Sketcher.Constraint("DistanceX", -1, 1, 42, 3, Q("27.364 mm")),
    Sketcher.Constraint("DistanceY", -1, 1, 44, 3, Q("60.335 mm")),
    Sketcher.Constraint("DistanceY", -1, 1, 51, 3, Q("35.224 mm")),
    Sketcher.Constraint("DistanceX", -1, 1, 53, 3, Q("46.107 mm")),
    Sketcher.Constraint("DistanceX", -1, 1, 56, 3, Q("48.926 mm")),
    Sketcher.Constraint("DistanceY", -1, 1, 58, 3, Q("56.857 mm")),
    Sketcher.Constraint("DistanceY", -1, 1, 60, 3, Q("38.043 mm")),
    Sketcher.Constraint("DistanceX", -1, 1, 62, 3, Q("48.926 mm")),
    Sketcher.Constraint("DistanceY", -1, 1, 0, 1, Q("24.718 mm")),
    Sketcher.Constraint("DistanceX", -1, 1, 5, 2, Q("59.432 mm")),
    Sketcher.Constraint("DistanceY", -1, 1, 9, 2, Q("24.718 mm")),
    Sketcher.Constraint("DistanceX", -1, 1, 12, 1, Q("13.968 mm")),
    Sketcher.Constraint("DistanceX", -1, 1, 17, 2, Q("13.968 mm")),
    Sketcher.Constraint("DistanceY", -1, 1, 20, 1, Q("70.182 mm")),
    Sketcher.Constraint("DistanceY", -1, 1, 25, 2, Q("70.182 mm")),
    Sketcher.Constraint("DistanceX", -1, 1, 28, 1, Q("59.432 mm")),
    Sketcher.Constraint("DistanceY", -1, 1, 41, 2, Q("59.038 mm")),
    Sketcher.Constraint("DistanceY", -1, 1, 42, 1, Q("62.068 mm")),
    Sketcher.Constraint("DistanceY", -1, 1, 45, 2, Q("58.178 mm")),
    Sketcher.Constraint("DistanceX", -1, 1, 47, 2, Q("29.226 mm")),
    Sketcher.Constraint("DistanceX", -1, 1, 48, 2, Q("26.597 mm")),
    Sketcher.Constraint("DistanceX", -1, 1, 53, 1, Q("47.283 mm")),
    Sketcher.Constraint("DistanceY", -1, 1, 55, 1, Q("35.862 mm")),
    Sketcher.Constraint("DistanceY", -1, 1, 58, 1, Q("58.033 mm")),
    Sketcher.Constraint("DistanceY", -1, 1, 59, 1, Q("36.867 mm")),
    Sketcher.Constraint("DistanceX", -1, 1, 63, 2, Q("47.296 mm")),
    Sketcher.Constraint("Distance", 33, Q("1.0108 mm")),
    Sketcher.Constraint("Distance", 37, Q("1.0162 mm")),
    Sketcher.Constraint("Distance", 41, Q("1.0132 mm")),
    Sketcher.Constraint("Distance", 48, Q("1.0107 mm")),
    Sketcher.Constraint("Distance", 52, Q("1.0133 mm")),
    Sketcher.Constraint("Distance", 57, Q("1.0133 mm")),
    Sketcher.Constraint("Distance", 61, Q("1.0133 mm")),
    Sketcher.Constraint("DistanceX", -1, 1, 32, 3, Q("23.7755 mm")),
    Sketcher.Constraint("DistanceX", -1, 1, 38, 3, Q("23.7895 mm")),
    Sketcher.Constraint("DistanceX", -1, 1, 49, 3, Q("28.0383 mm")),
    Sketcher.Constraint("DistanceX", -1, 1, 2, 1, Q("39.8818 mm")),
    Sketcher.Constraint("DistanceX", -1, 1, 3, 2, Q("56.4453 mm")),
    Sketcher.Constraint("DistanceX", -1, 1, 6, 1, Q("61.4088 mm")),
    Sketcher.Constraint("DistanceX", -1, 1, 7, 1, Q("40.5043 mm")),
    Sketcher.Constraint("DistanceX", -1, 1, 10, 1, Q("32.8957 mm")),
    Sketcher.Constraint("DistanceX", -1, 1, 11, 1, Q("11.9912 mm")),
    Sketcher.Constraint("DistanceX", -1, 1, 14, 1, Q("16.9547 mm")),
    Sketcher.Constraint("DistanceX", -1, 1, 15, 2, Q("33.5182 mm")),
    Sketcher.Constraint("DistanceX", -1, 1, 18, 1, Q("11.9912 mm")),
    Sketcher.Constraint("DistanceX", -1, 1, 19, 1, Q("32.8957 mm")),
    Sketcher.Constraint("DistanceX", -1, 1, 22, 1, Q("33.5182 mm")),
    Sketcher.Constraint("DistanceX", -1, 1, 23, 2, Q("16.9547 mm")),
    Sketcher.Constraint("DistanceX", -1, 1, 26, 1, Q("40.5043 mm")),
    Sketcher.Constraint("DistanceX", -1, 1, 27, 1, Q("61.4088 mm")),
    Sketcher.Constraint("DistanceX", -1, 1, 30, 1, Q("56.4453 mm")),
    Sketcher.Constraint("DistanceX", -1, 1, 31, 2, Q("39.8818 mm")),
    Sketcher.Constraint("DistanceX", -1, 1, 34, 1, Q("26.1267 mm")),
    Sketcher.Constraint("DistanceX", -1, 1, 35, 2, Q("26.1214 mm")),
    Sketcher.Constraint("DistanceX", -1, 1, 36, 1, Q("25.9352 mm")),
    Sketcher.Constraint("DistanceX", -1, 1, 38, 1, Q("22.1757 mm")),
    Sketcher.Constraint("DistanceX", -1, 1, 43, 1, Q("47.3712 mm")),
    Sketcher.Constraint("DistanceX", -1, 1, 46, 1, Q("44.2754 mm")),
    Sketcher.Constraint("DistanceX", -1, 1, 49, 1, Q("29.1932 mm")),
    Sketcher.Constraint("DistanceX", -1, 1, 50, 2, Q("44.2318 mm")),
    Sketcher.Constraint("DistanceX", -1, 1, 51, 1, Q("46.8047 mm")),
    Sketcher.Constraint("DistanceX", -1, 1, 54, 1, Q("26.1672 mm")),
    Sketcher.Constraint("DistanceX", -1, 1, 56, 1, Q("47.5118 mm")),
    Sketcher.Constraint("DistanceX", -1, 1, 60, 1, Q("48.2283 mm")),
    Sketcher.Constraint("DistanceX", -1, 1, 62, 1, Q("47.2959 mm")),
])
sketch9.setExpression("Constraints[87]", "Params.sketch9_radius")
sketch9.setExpression("Constraints[88]", "Params.sketch9_radius2")
sketch9.setExpression("Constraints[89]", "Params.sketch9_radius3")
sketch9.setExpression("Constraints[90]", "Params.sketch9_radius4")
sketch9.setExpression("Constraints[91]", "Params.sketch9_radius5")
pocket8 = body.newObject("PartDesign::Pocket", "Pocket007")
pocket8.Profile = sketch9
pocket8.setExpression("Length", "Params.pocket8_length")
pocket8.Reversed = True
doc.recompute()

fillet = body.newObject("PartDesign::Fillet", "Fillet")
fillet.Base = (pocket8, edges_at(pocket8, [(115, 0, 107.5)]))
fillet.setExpression("Radius", "Params.fillet_radius")
doc.recompute()

fillet2 = body.newObject("PartDesign::Fillet", "Fillet001")
fillet2.Base = (fillet, edges_at(fillet, [(0, 0, 107.5)]))
fillet2.setExpression("Radius", "Params.fillet2_radius")

doc.recompute()
